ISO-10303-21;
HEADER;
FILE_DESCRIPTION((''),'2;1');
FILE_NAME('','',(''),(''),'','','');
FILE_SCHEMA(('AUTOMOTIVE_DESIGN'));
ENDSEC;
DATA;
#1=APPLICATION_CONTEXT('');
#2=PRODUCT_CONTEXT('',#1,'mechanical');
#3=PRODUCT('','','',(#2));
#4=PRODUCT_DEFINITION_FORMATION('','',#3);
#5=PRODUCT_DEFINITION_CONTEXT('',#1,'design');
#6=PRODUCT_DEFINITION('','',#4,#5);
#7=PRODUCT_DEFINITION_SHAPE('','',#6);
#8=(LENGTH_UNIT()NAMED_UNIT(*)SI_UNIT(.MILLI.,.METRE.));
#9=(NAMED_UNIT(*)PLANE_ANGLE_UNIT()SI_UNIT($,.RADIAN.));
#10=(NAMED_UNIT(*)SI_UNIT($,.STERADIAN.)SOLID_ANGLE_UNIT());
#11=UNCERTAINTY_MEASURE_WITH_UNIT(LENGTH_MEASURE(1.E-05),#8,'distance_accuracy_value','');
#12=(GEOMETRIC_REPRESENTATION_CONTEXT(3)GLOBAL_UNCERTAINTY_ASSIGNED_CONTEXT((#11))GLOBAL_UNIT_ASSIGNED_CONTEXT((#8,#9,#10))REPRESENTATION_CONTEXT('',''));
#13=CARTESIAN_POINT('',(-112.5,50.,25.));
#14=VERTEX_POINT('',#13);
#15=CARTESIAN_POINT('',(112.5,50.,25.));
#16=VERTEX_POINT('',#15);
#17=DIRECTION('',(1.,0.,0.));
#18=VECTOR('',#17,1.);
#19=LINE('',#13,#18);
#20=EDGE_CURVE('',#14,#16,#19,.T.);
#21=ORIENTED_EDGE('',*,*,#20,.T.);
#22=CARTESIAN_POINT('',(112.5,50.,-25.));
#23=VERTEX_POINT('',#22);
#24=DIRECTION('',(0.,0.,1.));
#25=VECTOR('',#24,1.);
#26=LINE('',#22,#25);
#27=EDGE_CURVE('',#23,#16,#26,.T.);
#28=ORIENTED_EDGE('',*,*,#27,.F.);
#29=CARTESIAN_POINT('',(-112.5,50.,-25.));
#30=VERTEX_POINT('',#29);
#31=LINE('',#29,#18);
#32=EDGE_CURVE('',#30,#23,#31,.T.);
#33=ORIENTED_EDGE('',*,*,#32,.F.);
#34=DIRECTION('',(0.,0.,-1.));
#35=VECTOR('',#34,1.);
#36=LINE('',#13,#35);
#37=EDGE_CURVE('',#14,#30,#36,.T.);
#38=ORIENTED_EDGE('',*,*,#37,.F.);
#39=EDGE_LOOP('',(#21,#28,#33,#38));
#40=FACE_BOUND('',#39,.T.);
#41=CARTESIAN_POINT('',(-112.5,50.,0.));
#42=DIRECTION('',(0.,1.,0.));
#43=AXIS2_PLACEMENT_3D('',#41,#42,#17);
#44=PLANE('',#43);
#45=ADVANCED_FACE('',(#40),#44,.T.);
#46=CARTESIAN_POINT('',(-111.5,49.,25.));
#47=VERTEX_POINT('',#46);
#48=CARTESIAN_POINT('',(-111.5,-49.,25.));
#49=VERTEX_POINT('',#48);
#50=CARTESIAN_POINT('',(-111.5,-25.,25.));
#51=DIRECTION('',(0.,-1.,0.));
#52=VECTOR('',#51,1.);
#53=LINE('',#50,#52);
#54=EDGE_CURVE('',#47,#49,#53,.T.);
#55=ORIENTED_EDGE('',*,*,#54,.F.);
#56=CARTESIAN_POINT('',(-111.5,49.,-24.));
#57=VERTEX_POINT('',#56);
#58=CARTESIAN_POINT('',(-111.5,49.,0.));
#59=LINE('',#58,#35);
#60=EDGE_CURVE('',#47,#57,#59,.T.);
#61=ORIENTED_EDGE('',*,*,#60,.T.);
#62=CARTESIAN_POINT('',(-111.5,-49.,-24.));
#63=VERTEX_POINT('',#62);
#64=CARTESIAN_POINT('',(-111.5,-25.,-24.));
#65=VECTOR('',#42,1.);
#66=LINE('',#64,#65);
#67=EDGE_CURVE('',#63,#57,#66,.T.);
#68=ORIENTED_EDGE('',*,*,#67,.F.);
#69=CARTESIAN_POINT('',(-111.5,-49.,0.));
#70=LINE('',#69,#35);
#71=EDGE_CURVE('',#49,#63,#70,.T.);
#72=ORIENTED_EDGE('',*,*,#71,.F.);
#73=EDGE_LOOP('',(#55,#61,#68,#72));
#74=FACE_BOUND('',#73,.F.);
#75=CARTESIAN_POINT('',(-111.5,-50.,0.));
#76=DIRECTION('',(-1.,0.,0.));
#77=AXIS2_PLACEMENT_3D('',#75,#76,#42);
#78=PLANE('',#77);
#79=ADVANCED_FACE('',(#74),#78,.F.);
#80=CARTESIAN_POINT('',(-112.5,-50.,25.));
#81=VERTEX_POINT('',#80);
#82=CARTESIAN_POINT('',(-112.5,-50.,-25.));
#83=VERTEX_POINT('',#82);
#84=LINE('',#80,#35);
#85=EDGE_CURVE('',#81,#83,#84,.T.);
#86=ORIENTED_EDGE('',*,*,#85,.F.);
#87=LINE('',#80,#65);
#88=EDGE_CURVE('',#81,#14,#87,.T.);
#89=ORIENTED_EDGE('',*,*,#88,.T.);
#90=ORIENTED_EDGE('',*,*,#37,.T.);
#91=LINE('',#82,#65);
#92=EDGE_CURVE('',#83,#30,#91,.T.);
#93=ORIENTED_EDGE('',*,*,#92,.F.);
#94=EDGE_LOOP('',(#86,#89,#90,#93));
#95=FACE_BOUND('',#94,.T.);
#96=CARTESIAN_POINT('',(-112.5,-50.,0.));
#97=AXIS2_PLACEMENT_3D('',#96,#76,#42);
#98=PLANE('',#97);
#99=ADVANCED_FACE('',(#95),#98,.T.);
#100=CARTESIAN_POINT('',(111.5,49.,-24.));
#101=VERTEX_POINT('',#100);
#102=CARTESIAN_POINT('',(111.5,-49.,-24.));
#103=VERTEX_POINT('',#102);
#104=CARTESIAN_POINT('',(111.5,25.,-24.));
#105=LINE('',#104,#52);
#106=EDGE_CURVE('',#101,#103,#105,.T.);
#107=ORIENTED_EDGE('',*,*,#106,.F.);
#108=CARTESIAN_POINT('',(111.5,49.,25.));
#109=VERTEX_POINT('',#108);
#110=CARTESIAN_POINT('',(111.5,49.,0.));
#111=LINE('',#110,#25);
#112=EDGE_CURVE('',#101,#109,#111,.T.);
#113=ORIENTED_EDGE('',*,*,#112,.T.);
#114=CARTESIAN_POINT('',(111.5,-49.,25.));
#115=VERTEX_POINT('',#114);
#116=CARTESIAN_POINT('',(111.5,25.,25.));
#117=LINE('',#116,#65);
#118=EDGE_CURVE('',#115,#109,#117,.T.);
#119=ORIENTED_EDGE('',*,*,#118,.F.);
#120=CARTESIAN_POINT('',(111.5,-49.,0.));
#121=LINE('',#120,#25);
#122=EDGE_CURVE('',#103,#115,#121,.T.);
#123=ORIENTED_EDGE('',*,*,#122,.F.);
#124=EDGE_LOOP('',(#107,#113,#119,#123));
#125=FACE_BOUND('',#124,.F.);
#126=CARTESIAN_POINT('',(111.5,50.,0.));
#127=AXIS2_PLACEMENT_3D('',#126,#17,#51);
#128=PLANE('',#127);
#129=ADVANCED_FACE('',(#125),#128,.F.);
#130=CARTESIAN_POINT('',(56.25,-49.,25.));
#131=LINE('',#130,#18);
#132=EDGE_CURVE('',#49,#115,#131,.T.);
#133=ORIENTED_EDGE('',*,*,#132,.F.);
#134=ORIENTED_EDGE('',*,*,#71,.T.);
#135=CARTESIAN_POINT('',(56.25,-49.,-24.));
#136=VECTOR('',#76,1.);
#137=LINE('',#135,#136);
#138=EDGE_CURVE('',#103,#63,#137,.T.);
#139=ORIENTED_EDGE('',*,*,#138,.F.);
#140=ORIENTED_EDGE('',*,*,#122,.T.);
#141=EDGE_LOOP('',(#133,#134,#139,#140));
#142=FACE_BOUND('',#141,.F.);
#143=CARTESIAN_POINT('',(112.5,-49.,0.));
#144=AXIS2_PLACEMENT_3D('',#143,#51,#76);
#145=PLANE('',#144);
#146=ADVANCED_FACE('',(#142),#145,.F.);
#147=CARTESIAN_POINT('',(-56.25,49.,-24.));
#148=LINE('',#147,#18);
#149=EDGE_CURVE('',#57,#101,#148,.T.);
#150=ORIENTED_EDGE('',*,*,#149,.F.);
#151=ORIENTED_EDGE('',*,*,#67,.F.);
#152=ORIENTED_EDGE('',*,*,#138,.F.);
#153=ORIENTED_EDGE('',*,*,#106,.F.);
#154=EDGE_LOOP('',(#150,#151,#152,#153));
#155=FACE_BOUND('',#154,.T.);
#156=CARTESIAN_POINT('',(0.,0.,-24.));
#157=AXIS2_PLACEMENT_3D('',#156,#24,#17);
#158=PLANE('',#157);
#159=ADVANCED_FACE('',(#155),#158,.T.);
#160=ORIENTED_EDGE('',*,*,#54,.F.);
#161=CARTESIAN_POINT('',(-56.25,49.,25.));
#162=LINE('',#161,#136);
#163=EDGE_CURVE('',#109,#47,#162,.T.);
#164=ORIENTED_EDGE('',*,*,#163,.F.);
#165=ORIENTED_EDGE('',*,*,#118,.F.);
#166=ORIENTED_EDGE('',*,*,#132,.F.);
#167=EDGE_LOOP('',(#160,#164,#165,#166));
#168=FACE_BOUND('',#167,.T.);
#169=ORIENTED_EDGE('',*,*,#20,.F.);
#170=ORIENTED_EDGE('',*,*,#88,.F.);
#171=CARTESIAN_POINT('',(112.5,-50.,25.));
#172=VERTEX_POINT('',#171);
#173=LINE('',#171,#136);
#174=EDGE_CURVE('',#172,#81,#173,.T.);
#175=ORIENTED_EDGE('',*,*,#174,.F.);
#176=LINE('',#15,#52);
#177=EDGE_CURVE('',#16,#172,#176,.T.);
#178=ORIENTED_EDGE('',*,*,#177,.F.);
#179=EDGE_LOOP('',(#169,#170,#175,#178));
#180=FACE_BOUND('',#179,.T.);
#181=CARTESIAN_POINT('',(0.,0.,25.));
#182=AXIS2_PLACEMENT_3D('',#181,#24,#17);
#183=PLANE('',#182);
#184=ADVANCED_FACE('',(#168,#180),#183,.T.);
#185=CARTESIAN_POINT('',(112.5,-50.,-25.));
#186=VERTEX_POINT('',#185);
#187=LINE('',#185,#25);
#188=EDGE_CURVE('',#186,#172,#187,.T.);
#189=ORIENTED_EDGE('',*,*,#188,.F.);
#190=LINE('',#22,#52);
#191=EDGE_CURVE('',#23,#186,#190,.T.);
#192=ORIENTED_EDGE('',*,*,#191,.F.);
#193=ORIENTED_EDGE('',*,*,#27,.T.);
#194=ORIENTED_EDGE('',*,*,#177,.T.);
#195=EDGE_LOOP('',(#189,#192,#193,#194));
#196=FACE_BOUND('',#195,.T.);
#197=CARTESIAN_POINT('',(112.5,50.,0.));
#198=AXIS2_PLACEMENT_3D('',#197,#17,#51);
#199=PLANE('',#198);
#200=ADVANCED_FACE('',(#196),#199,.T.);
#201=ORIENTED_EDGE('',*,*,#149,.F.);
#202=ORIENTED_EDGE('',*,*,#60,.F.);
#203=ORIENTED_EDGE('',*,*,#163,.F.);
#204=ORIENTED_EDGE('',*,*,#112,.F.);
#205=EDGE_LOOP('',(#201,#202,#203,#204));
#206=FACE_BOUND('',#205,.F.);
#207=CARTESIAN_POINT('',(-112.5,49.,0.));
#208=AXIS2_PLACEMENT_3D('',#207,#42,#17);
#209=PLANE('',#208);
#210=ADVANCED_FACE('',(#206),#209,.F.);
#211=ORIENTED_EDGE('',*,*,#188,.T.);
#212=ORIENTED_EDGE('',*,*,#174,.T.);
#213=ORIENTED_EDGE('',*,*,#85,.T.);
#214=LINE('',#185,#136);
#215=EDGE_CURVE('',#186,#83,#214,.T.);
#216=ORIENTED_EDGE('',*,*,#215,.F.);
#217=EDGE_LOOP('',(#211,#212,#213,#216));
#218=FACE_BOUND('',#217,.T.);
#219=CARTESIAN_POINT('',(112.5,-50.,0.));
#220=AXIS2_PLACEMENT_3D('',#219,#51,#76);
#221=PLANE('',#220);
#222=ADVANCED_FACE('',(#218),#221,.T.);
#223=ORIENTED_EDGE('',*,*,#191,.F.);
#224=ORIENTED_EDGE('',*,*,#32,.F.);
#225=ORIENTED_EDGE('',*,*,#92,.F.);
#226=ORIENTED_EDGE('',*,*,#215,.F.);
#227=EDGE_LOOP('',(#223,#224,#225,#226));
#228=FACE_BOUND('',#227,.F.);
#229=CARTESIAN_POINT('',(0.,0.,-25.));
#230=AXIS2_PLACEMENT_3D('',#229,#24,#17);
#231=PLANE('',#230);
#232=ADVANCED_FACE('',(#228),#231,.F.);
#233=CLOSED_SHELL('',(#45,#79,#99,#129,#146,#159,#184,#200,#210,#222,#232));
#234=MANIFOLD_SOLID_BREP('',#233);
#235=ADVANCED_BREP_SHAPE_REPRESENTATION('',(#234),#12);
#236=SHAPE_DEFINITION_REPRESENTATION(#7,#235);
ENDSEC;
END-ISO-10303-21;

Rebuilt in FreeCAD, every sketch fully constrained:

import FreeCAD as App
import Part
import Sketcher

V = App.Vector


def faces_at(feature, points):
    """Names of the faces that lie closest to the given points."""
    faces = feature.Shape.Faces
    near = lambda p: min(range(len(faces)), key=lambda i: faces[i].distToShape(Part.Vertex(*p))[0])
    return sorted({f"Face{near(p) + 1}" for p in points})


def add_polygon(sketch, points):
    """Adds a closed chain of lines whose ends are joined by coincident constraints."""
    first, n = sketch.GeometryCount, len(points)
    for a, b in zip(points, points[1:] + points[:1]):
        sketch.addGeometry(Part.LineSegment(App.Vector(*a, 0), App.Vector(*b, 0)), False)
    for i in range(n):
        sketch.addConstraint(Sketcher.Constraint("Coincident", first + i, 2, first + (i + 1) % n, 1))

doc = App.newDocument("Part")
body = doc.addObject("PartDesign::Body", "Body")

# Sketch on XY plane
sketch1 = doc.addObject("Sketcher::SketchObject", "Sketch")
body.addObject(sketch1)
sketch1.AttachmentSupport = (doc.XY_Plane, [""])
sketch1.MapMode = "FlatFace"
add_polygon(sketch1, [(-112, -50), (112, -50), (112, 50), (-112, 50)])  # lines 0-3
sketch1.addConstraint(Sketcher.Constraint("Horizontal", 0))
sketch1.addConstraint(Sketcher.Constraint("Vertical", 1))
sketch1.addConstraint(Sketcher.Constraint("Horizontal", 2))
sketch1.addConstraint(Sketcher.Constraint("Vertical", 3))
sketch1.addConstraint(Sketcher.Constraint("Symmetric", 0, 2, 2, 2, -1, 1))
sketch1.addConstraint(Sketcher.Constraint("DistanceX", 0, 1, 0, 2, 225.0))
sketch1.addConstraint(Sketcher.Constraint("DistanceY", 1, 1, 1, 2, 100.0))
pad1 = doc.addObject("PartDesign::Pad", "Pad")
body.addObject(pad1)
pad1.Profile = sketch1
pad1.Length = 50
pad1.Midplane = True
doc.recompute()

thickness = doc.addObject("PartDesign::Thickness", "Thickness")
body.addObject(thickness)
thickness.Base = (pad1, faces_at(pad1, [(37.5, 16.667, 25)]))
thickness.Value = 1
thickness.Reversed = True
thickness.Join = "Intersection"

doc.recompute()
